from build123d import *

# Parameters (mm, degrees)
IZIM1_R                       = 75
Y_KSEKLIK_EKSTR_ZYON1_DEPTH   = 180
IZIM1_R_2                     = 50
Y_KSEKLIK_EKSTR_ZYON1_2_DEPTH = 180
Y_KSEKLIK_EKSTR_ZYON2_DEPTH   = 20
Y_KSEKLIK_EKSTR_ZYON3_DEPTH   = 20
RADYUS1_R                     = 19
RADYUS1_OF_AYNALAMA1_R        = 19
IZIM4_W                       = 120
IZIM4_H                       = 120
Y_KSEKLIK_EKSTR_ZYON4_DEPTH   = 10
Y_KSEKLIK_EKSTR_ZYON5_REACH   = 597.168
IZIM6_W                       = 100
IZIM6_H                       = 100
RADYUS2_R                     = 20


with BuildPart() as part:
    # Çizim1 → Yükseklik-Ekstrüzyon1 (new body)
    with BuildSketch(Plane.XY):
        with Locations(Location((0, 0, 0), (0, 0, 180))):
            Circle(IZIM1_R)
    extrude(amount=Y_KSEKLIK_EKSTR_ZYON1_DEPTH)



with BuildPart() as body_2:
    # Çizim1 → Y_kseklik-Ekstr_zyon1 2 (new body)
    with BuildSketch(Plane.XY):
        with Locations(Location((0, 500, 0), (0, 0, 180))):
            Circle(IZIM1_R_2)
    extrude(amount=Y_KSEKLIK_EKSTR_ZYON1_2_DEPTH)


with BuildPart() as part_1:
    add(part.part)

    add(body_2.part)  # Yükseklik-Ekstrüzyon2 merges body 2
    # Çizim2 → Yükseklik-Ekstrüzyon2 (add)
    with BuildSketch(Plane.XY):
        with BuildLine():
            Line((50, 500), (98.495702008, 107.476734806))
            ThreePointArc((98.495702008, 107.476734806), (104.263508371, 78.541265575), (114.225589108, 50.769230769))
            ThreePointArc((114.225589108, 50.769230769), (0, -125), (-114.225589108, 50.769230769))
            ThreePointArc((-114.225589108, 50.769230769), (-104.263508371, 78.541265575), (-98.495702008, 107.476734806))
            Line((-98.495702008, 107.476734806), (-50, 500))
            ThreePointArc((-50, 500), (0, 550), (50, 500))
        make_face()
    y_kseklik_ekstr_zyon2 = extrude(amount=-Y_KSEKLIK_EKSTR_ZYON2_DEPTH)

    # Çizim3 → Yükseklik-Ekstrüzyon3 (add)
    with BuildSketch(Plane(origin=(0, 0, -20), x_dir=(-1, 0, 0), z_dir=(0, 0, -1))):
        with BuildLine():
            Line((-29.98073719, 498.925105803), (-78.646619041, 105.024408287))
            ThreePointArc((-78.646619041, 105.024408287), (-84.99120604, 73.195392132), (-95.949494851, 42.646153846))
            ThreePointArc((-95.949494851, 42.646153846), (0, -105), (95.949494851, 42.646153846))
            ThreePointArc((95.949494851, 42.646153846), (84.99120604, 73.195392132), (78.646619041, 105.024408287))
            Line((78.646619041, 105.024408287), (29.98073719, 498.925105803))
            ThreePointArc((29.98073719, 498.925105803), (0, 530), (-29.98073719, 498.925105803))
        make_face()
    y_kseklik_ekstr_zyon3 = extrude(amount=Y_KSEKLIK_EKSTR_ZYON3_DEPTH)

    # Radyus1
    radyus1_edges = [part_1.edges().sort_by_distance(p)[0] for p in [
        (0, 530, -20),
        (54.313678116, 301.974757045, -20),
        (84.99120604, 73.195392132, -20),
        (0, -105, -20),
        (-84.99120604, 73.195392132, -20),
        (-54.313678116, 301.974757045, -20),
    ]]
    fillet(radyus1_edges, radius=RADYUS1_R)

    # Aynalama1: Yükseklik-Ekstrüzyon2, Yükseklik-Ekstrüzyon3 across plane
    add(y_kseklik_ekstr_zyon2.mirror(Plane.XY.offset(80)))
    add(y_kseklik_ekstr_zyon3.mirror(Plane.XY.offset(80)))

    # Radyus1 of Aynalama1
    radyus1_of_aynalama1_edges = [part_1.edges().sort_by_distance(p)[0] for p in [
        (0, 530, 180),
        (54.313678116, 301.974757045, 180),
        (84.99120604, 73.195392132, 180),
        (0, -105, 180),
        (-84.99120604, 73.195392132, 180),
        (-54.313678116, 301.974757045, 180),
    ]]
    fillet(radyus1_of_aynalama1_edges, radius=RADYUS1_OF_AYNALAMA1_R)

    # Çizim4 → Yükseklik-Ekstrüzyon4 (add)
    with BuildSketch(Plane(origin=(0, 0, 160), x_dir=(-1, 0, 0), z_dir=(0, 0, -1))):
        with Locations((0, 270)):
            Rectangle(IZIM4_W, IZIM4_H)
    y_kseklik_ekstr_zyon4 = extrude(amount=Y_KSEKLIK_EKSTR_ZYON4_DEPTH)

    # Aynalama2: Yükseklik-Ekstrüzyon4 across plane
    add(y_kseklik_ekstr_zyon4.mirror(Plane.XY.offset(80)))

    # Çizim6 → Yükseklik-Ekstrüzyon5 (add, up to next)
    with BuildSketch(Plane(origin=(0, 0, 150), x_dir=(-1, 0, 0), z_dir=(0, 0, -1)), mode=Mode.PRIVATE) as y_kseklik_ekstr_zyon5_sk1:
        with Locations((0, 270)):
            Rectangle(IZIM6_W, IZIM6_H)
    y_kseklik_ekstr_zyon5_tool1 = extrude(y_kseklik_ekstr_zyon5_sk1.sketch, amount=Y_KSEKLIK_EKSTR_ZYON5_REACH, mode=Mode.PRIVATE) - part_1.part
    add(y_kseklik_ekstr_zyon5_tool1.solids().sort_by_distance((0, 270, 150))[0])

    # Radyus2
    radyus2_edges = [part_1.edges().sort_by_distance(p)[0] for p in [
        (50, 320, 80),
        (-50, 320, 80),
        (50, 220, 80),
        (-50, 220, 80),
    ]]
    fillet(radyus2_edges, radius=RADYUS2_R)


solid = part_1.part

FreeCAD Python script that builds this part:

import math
import FreeCAD as App
import Part
import Sketcher

V = App.Vector


def edges_at(feature, points):
    """Names of the edges that pass closest to the given points."""
    edges = feature.Shape.Edges
    near = lambda p: min(range(len(edges)), key=lambda i: edges[i].distToShape(Part.Vertex(*p))[0])
    return sorted({f"Edge{near(p) + 1}" for p in points})


def add_polygon(sketch, points):
    """Adds a closed chain of lines whose ends are joined by coincident constraints."""
    first, n = sketch.GeometryCount, len(points)
    for a, b in zip(points, points[1:] + points[:1]):
        sketch.addGeometry(Part.LineSegment(App.Vector(*a, 0), App.Vector(*b, 0)), False)
    for i in range(n):
        sketch.addConstraint(Sketcher.Constraint("Coincident", first + i, 2, first + (i + 1) % n, 1))

doc = App.newDocument("Part")
body = doc.addObject("PartDesign::Body", "Body")

sketch1 = body.newObject("Sketcher::SketchObject", "Sketch")
sketch1.AttachmentSupport = (doc.getObject("XY_Plane"), [""])
sketch1.MapMode = "FlatFace"
sketch1.addGeometry(Part.Circle(V(0, 0, 0), V(0, 0, 1), 75), False)
sketch1.addConstraint([
    Sketcher.Constraint("Coincident", 0, 3, -1, 1),
    Sketcher.Constraint("Diameter", 0, 150.0),
])
pad1 = body.newObject("PartDesign::Pad", "Pad")
pad1.Profile = sketch1
pad1.Length = 180
body2 = doc.addObject("PartDesign::Body", "Body001")

sketch2 = body2.newObject("Sketcher::SketchObject", "Sketch001")
sketch2.AttachmentSupport = (doc.getObject("XY_Plane001"), [""])
sketch2.MapMode = "FlatFace"
sketch2.addGeometry(Part.Circle(V(0, 500, 0), V(0, 0, 1), 50), False)
sketch2.addConstraint([
    Sketcher.Constraint("PointOnObject", 0, 3, -2),
    Sketcher.Constraint("Diameter", 0, 100.0),
    Sketcher.Constraint("DistanceY", -1, 1, 0, 3, 500.0),
])
pad2 = body2.newObject("PartDesign::Pad", "Pad001")
pad2.Profile = sketch2
pad2.Length = 180
body.AllowCompound = True
doc.recompute()

boolean = body.newObject("PartDesign::Boolean", "Boolean")
boolean.Type = "Fuse"
boolean.addObjects([body2])

sketch3 = body.newObject("Sketcher::SketchObject", "Sketch002")
sketch3.AttachmentSupport = (doc.getObject("XY_Plane"), [""])
sketch3.MapMode = "FlatFace"
sketch3.addGeometry([
    Part.LineSegment(V(98, 107, 0), V(50, 500, 0)),
    Part.ArcOfCircle(Part.Circle(V(0, 500, 0), V(0, 0, 1), 50), math.radians(0), math.radians(180)),
    Part.LineSegment(V(-50, 500, 0), V(-98, 107, 0)),
    Part.ArcOfCircle(Part.Circle(V(-297, 132, 0), V(0, 0, 1), 200), math.radians(-23.96), math.radians(-7.04)),
    Part.ArcOfCircle(Part.Circle(V(0, 0, 0), V(0, 0, 1), 125), math.radians(156), math.radians(384)),
    Part.ArcOfCircle(Part.Circle(V(297, 132, 0), V(0, 0, 1), 200), math.radians(-172.96), math.radians(-156.04)),
], False)
sketch3.addConstraint([
    Sketcher.Constraint("Coincident", 0, 2, 1, 1),
    Sketcher.Constraint("Coincident", 1, 2, 2, 1),
    Sketcher.Constraint("Tangent", 2, 2, 3, 2),
    Sketcher.Constraint("Tangent", 3, 1, 4, 1),
    Sketcher.Constraint("Tangent", 4, 2, 5, 2),
    Sketcher.Constraint("Tangent", 5, 1, 0, 1),
    Sketcher.Constraint("Coincident", 4, 3, -1, 1),
    Sketcher.Constraint("Equal", 3, 5),
    Sketcher.Constraint("Symmetric", 0, 2, 1, 2, -2),
    Sketcher.Constraint("Horizontal", 3, 3, 5, 3),
    Sketcher.Constraint("Horizontal", 1, 3, 0, 2),
    Sketcher.Constraint("Radius", 1, 50.0),
    Sketcher.Constraint("Radius", 3, 200.0),
    Sketcher.Constraint("Radius", 4, 125.0),
    Sketcher.Constraint("DistanceY", -1, 1, 1, 3, 500.0),
    Sketcher.Constraint("DistanceY", -1, 1, 3, 3, 132.0),
])
pad3 = body.newObject("PartDesign::Pad", "Pad002")
pad3.Profile = sketch3
pad3.Length = 20
pad3.Reversed = True

sketch4 = body.newObject("Sketcher::SketchObject", "Sketch003")
sketch4.AttachmentSupport = (doc.getObject("XY_Plane"), [""])
sketch4.MapMode = "FlatFace"
sketch4.AttachmentOffset = App.Placement(V(0, 0, -20), App.Rotation())
sketch4.addGeometry([
    Part.LineSegment(V(30, 499, 0), V(79, 105, 0)),
    Part.ArcOfCircle(Part.Circle(V(297, 132, 0), V(0, 0, 1), 220), math.radians(-172.96), math.radians(-156.04)),
    Part.ArcOfCircle(Part.Circle(V(0, 0, 0), V(0, 0, 1), 105), math.radians(156), math.radians(384)),
    Part.ArcOfCircle(Part.Circle(V(-297, 132, 0), V(0, 0, 1), 220), math.radians(-23.96), math.radians(-7.04)),
    Part.LineSegment(V(-79, 105, 0), V(-30, 499, 0)),
    Part.ArcOfCircle(Part.Circle(V(0, 500, 0), V(0, 0, 1), 30), math.radians(-2), math.radians(182)),
], False)
sketch4.addConstraint([
    Sketcher.Constraint("Tangent", 0, 2, 1, 1),
    Sketcher.Constraint("Tangent", 1, 2, 2, 2),
    Sketcher.Constraint("Tangent", 2, 1, 3, 1),
    Sketcher.Constraint("Tangent", 3, 2, 4, 1),
    Sketcher.Constraint("Coincident", 4, 2, 5, 2),
    Sketcher.Constraint("Coincident", 5, 1, 0, 1),
    Sketcher.Constraint("Coincident", 2, 3, -1, 1),
    Sketcher.Constraint("Equal", 1, 3),
    Sketcher.Constraint("Symmetric", 4, 2, 5, 1, -2),
    Sketcher.Constraint("Horizontal", 1, 3, 3, 3),
    Sketcher.Constraint("Radius", 1, 220.0),
    Sketcher.Constraint("Radius", 2, 105.0),
    Sketcher.Constraint("Radius", 5, 30.0),
    Sketcher.Constraint("DistanceY", -1, 1, 1, 3, 132.0),
    Sketcher.Constraint("DistanceY", -1, 1, 5, 3, 500.0),
    Sketcher.Constraint("DistanceX", -1, 1, 0, 2, 78.646619),
])
pad4 = body.newObject("PartDesign::Pad", "Pad003")
pad4.Profile = sketch4
pad4.Length = 20
pad4.Reversed = True
doc.recompute()

fillet = body.newObject("PartDesign::Fillet", "Fillet")
fillet.Base = (pad4, edges_at(pad4, [
    (0, 530, -20),
    (54.314, 301.975, -20),
    (84.991, 73.195, -20),
    (0, -105, -20),
    (-84.991, 73.195, -20),
    (-54.314, 301.975, -20),
]))
fillet.Radius = 19
doc.recompute()

datumplane = body.newObject("PartDesign::Plane", "DatumPlane")
datumplane.AttachmentSupport = (doc.getObject("XY_Plane"), [""])
datumplane.MapMode = "FlatFace"
datumplane.AttachmentOffset = App.Placement(V(0, 0, 80), App.Rotation())
mirrored = body.newObject("PartDesign::Mirrored", "Mirrored")
mirrored.Originals = [pad3, pad4]
mirrored.MirrorPlane = (datumplane, [""])
body.Tip = mirrored
doc.recompute()

fillet2 = body.newObject("PartDesign::Fillet", "Fillet001")
fillet2.Base = (mirrored, edges_at(mirrored, [
    (0, 530, 180),
    (54.314, 301.975, 180),
    (84.991, 73.195, 180),
    (0, -105, 180),
    (-84.991, 73.195, 180),
    (-54.314, 301.975, 180),
]))
fillet2.Radius = 19

sketch5 = body.newObject("Sketcher::SketchObject", "Sketch004")
sketch5.AttachmentSupport = (doc.getObject("XY_Plane"), [""])
sketch5.MapMode = "FlatFace"
sketch5.AttachmentOffset = App.Placement(V(0, 0, 160), App.Rotation())
add_polygon(sketch5, [(60, 330), (60, 210), (-60, 210), (-60, 330)])
sketch5.addConstraint([
    Sketcher.Constraint("Vertical", 0),
    Sketcher.Constraint("Horizontal", 1),
    Sketcher.Constraint("Vertical", 2),
    Sketcher.Constraint("Horizontal", 3),
    Sketcher.Constraint("Equal", 3, 0),
    Sketcher.Constraint("DistanceX", 1, 2, 1, 1, 120.0),
    Sketcher.Constraint("DistanceX", -1, 1, 0, 2, 60.0),
    Sketcher.Constraint("DistanceY", -1, 1, 0, 2, 210.0),
])
pad5 = body.newObject("PartDesign::Pad", "Pad004")
pad5.Profile = sketch5
pad5.Length = 10
pad5.Reversed = True
doc.recompute()

datumplane2 = body.newObject("PartDesign::Plane", "DatumPlane001")
datumplane2.AttachmentSupport = (doc.getObject("XY_Plane"), [""])
datumplane2.MapMode = "FlatFace"
datumplane2.AttachmentOffset = App.Placement(V(0, 0, 80), App.Rotation())
mirrored2 = body.newObject("PartDesign::Mirrored", "Mirrored001")
mirrored2.Originals = [pad5]
mirrored2.MirrorPlane = (datumplane2, [""])
body.Tip = mirrored2

sketch6 = body.newObject("Sketcher::SketchObject", "Sketch005")
sketch6.AttachmentSupport = (doc.getObject("XY_Plane"), [""])
sketch6.MapMode = "FlatFace"
sketch6.AttachmentOffset = App.Placement(V(0, 0, 150), App.Rotation())
add_polygon(sketch6, [(50, 320), (50, 220), (-50, 220), (-50, 320)])
sketch6.addConstraint([
    Sketcher.Constraint("Vertical", 0),
    Sketcher.Constraint("Horizontal", 1),
    Sketcher.Constraint("Vertical", 2),
    Sketcher.Constraint("Horizontal", 3),
    Sketcher.Constraint("Equal", 3, 0),
    Sketcher.Constraint("DistanceX", 1, 2, 1, 1, 100.0),
    Sketcher.Constraint("DistanceX", -1, 1, 0, 2, 50.0),
    Sketcher.Constraint("DistanceY", -1, 1, 0, 2, 220.0),
])
pad6 = body.newObject("PartDesign::Pad", "Pad005")
pad6.Profile = sketch6
pad6.Type = "UpToFirst"
pad6.Reversed = True
doc.recompute()

fillet3 = body.newObject("PartDesign::Fillet", "Fillet002")
fillet3.Base = (pad6, edges_at(pad6, [
    (50, 320, 80),
    (-50, 320, 80),
    (50, 220, 80),
    (-50, 220, 80),
]))
fillet3.Radius = 20

doc.recompute()
